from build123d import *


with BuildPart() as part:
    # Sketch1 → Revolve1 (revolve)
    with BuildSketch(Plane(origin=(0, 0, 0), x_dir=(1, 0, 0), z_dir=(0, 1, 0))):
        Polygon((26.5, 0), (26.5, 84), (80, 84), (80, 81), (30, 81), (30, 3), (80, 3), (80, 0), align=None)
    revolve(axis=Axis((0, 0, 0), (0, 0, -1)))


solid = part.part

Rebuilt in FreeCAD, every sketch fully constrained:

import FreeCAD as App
import Part
import Sketcher
from FreeCAD import Vector
Q = App.Units.Quantity


def add_polygon(sketch, points):
    """Adds a closed chain of lines whose ends are joined by coincident constraints."""
    first, n = sketch.GeometryCount, len(points)
    for a, b in zip(points, points[1:] + points[:1]):
        sketch.addGeometry(Part.LineSegment(App.Vector(*a, 0), App.Vector(*b, 0)), False)
    for i in range(n):
        sketch.addConstraint(Sketcher.Constraint("Coincident", first + i, 2, first + (i + 1) % n, 1))

doc = App.newDocument("Part")
body = doc.addObject("PartDesign::Body", "Body")

# Sketch on XZ plane
sketch1 = body.newObject("Sketcher::SketchObject", "Sketch")
sketch1.AttachmentSupport = (doc.getObject("XZ_Plane"), [""])
sketch1.MapMode = "FlatFace"
add_polygon(sketch1, [(26.5, -84), (26.5, 0), (80, 0), (80, -3), (30, -3), (30, -81), (80, -81), (80, -84)])  # lines 0-7
sketch1.addConstraint([
    Sketcher.Constraint("Vertical", 0),
    Sketcher.Constraint("Horizontal", 1),
    Sketcher.Constraint("Vertical", 2),
    Sketcher.Constraint("Horizontal", 3),
    Sketcher.Constraint("Vertical", 4),
    Sketcher.Constraint("Horizontal", 5),
    Sketcher.Constraint("Vertical", 6),
    Sketcher.Constraint("Horizontal", 7),
    Sketcher.Constraint("PointOnObject", 0, 2, -1),
    Sketcher.Constraint("Vertical", 2, 2, 5, 2),
    Sketcher.Constraint("Equal", 2, 6),
    Sketcher.Constraint("DistanceX", 3, 2, 3, 1, Q("50 mm")),
    Sketcher.Constraint("DistanceY", 0, 1, 0, 2, Q("84 mm")),
    Sketcher.Constraint("DistanceY", 2, 2, 2, 1, Q("3 mm")),
    Sketcher.Constraint("DistanceX", 1, 1, 1, 2, Q("53.5 mm")),
    Sketcher.Constraint("DistanceX", -1, 1, 1, 2, Q("80 mm")),
])
revolution = body.newObject("PartDesign::Revolution", "Revolution")
revolution.Profile = sketch1
revolution.ReferenceAxis = (sketch1, ["V_Axis"])
revolution.Angle = 360

doc.recompute()
